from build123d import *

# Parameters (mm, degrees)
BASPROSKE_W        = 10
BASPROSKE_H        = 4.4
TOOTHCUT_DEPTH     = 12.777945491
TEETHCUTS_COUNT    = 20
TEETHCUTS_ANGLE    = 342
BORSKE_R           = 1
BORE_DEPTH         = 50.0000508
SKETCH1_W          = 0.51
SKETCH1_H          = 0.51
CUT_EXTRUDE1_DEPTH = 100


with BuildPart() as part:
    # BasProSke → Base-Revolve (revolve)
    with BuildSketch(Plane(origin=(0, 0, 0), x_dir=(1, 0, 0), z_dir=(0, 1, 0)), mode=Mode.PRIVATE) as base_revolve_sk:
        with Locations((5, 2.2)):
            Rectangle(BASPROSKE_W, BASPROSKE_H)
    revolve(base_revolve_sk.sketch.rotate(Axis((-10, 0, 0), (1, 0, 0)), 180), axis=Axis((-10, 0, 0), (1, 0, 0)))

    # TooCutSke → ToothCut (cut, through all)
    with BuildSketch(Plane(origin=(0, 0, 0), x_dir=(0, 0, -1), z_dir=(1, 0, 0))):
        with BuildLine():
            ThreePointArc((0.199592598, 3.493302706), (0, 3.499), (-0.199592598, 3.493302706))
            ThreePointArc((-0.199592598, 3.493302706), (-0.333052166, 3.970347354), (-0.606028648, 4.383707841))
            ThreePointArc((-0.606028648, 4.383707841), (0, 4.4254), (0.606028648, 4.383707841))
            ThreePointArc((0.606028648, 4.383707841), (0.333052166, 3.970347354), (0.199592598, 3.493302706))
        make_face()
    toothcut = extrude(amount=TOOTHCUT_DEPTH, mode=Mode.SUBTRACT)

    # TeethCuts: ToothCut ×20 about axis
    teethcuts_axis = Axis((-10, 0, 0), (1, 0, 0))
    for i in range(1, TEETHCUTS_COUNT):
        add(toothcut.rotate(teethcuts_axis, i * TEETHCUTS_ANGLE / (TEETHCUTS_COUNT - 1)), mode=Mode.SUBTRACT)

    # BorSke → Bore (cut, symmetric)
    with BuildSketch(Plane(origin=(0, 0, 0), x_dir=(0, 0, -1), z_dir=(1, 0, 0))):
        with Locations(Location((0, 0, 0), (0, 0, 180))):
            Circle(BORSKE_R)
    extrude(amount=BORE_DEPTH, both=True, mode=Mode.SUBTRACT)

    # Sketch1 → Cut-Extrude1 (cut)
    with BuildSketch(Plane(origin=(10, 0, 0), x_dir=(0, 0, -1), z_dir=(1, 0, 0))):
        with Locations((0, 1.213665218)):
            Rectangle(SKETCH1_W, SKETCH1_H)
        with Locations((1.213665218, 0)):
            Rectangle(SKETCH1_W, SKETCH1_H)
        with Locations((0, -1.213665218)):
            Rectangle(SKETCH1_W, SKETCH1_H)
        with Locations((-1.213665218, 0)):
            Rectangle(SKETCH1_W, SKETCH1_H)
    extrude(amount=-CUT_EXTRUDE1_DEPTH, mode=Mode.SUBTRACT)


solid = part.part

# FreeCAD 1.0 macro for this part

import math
import FreeCAD as App
import Part
import Sketcher
from FreeCAD import Vector


def add_polygon(sketch, points):
    """Adds a closed chain of lines whose ends are joined by coincident constraints."""
    first, n = sketch.GeometryCount, len(points)
    for a, b in zip(points, points[1:] + points[:1]):
        sketch.addGeometry(Part.LineSegment(App.Vector(*a, 0), App.Vector(*b, 0)), False)
    for i in range(n):
        sketch.addConstraint(Sketcher.Constraint("Coincident", first + i, 2, first + (i + 1) % n, 1))

doc = App.newDocument("Part")
body = doc.addObject("PartDesign::Body", "Body")

sketch1 = doc.addObject("Sketcher::SketchObject", "Sketch")
body.addObject(sketch1)
sketch1.AttachmentSupport = (doc.XZ_Plane, [""])
sketch1.MapMode = "FlatFace"
add_polygon(sketch1, [(0, -4.4), (0, 0), (10, 0), (10, -4.4)])
sketch1.addConstraint([
    Sketcher.Constraint("Vertical", 0),
    Sketcher.Constraint("Horizontal", 1),
    Sketcher.Constraint("Vertical", 2),
    Sketcher.Constraint("Horizontal", 3),
    Sketcher.Constraint("Coincident", 0, 2, -1, 1),
    Sketcher.Constraint("DistanceX", 1, 1, 1, 2, 10.0),
    Sketcher.Constraint("DistanceY", 0, 1, 0, 2, 4.4),
])
revolution = doc.addObject("PartDesign::Revolution", "Revolution")
body.addObject(revolution)
revolution.Profile = sketch1
revolution.ReferenceAxis = (sketch1, ["H_Axis"])
revolution.Angle = 360

sketch2 = doc.addObject("Sketcher::SketchObject", "Sketch001")
body.addObject(sketch2)
sketch2.AttachmentSupport = (doc.YZ_Plane, [""])
sketch2.MapMode = "FlatFace"
sketch2.addGeometry([
    Part.ArcOfCircle(Part.Circle(Vector(0, 0, 0), Vector(0, 0, 1), 3.5), math.radians(-3.27), math.radians(3.27)),
    Part.ArcOfCircle(Part.Circle(Vector(3.31, -1.79, 0), Vector(0, 0, 1), 1.6), math.radians(48), math.radians(83)),
    Part.ArcOfCircle(Part.Circle(Vector(0, 0, 0), Vector(0, 0, 1), 4.43), math.radians(-7.87), math.radians(7.87)),
    Part.ArcOfCircle(Part.Circle(Vector(3.31, 1.79, 0), Vector(0, 0, 1), 1.6), math.radians(-83), math.radians(-48)),
], False)
sketch2.addConstraint([
    Sketcher.Constraint("Coincident", 0, 1, 1, 2),
    Sketcher.Constraint("Coincident", 1, 1, 2, 1),
    Sketcher.Constraint("Coincident", 2, 2, 3, 2),
    Sketcher.Constraint("Coincident", 3, 1, 0, 2),
    Sketcher.Constraint("Coincident", 0, 3, -1, 1),
    Sketcher.Constraint("Coincident", 2, 3, -1, 1),
    Sketcher.Constraint("Equal", 1, 3),
    Sketcher.Constraint("Symmetric", 1, 3, 3, 3, -1),
    Sketcher.Constraint("Radius", 1, 1.6),
    Sketcher.Constraint("Radius", 0, 3.499),
    Sketcher.Constraint("Radius", 2, 4.4254),
    Sketcher.Constraint("DistanceX", -1, 1, 1, 3, 3.305952),
    Sketcher.Constraint("DistanceY", 1, 1, -1, 1, 0.606029),
])
pocket1 = doc.addObject("PartDesign::Pocket", "Pocket")
body.addObject(pocket1)
pocket1.Profile = sketch2
pocket1.Type = "ThroughAll"
pocket1.Reversed = True
doc.recompute()

polarpattern = doc.addObject("PartDesign::PolarPattern", "PolarPattern")
body.addObject(polarpattern)
polarpattern.Originals = [pocket1]
polarpattern.Axis = (doc.X_Axis, [""])
polarpattern.Angle = 360
polarpattern.Occurrences = 20
body.Tip = polarpattern

sketch3 = doc.addObject("Sketcher::SketchObject", "Sketch002")
body.addObject(sketch3)
sketch3.AttachmentSupport = (doc.YZ_Plane, [""])
sketch3.MapMode = "FlatFace"
sketch3.addGeometry(Part.Circle(Vector(0, 0, 0), Vector(0, 0, 1), 1), False)
sketch3.addConstraint([
    Sketcher.Constraint("Coincident", 0, 3, -1, 1),
    Sketcher.Constraint("Diameter", 0, 2.0),
])
pocket2 = doc.addObject("PartDesign::Pocket", "Pocket001")
body.addObject(pocket2)
pocket2.Profile = sketch3
pocket2.Length = 100.000102
pocket2.Midplane = True

sketch4 = doc.addObject("Sketcher::SketchObject", "Sketch003")
body.addObject(sketch4)
sketch4.AttachmentSupport = (doc.YZ_Plane, [""])
sketch4.MapMode = "FlatFace"
sketch4.AttachmentOffset = App.Placement(Vector(0, 0, 10), App.Rotation())
add_polygon(sketch4, [(1.5, 0.3), (1, 0.3), (1, -0.3), (1.5, -0.3)])
add_polygon(sketch4, [(0.3, -1), (-0.3, -1), (-0.3, -1.5), (0.3, -1.5)])
add_polygon(sketch4, [(-1, 0.3), (-1.5, 0.3), (-1.5, -0.3), (-1, -0.3)])
add_polygon(sketch4, [(0.3, 1.5), (-0.3, 1.5), (-0.3, 1), (0.3, 1)])
sketch4.addConstraint([
    Sketcher.Constraint("Horizontal", 0),
    Sketcher.Constraint("Vertical", 1),
    Sketcher.Constraint("Horizontal", 2),
    Sketcher.Constraint("Vertical", 3),
    Sketcher.Constraint("Horizontal", 4),
    Sketcher.Constraint("Vertical", 5),
    Sketcher.Constraint("Horizontal", 6),
    Sketcher.Constraint("Vertical", 7),
    Sketcher.Constraint("Horizontal", 8),
    Sketcher.Constraint("Vertical", 9),
    Sketcher.Constraint("Horizontal", 10),
    Sketcher.Constraint("Vertical", 11),
    Sketcher.Constraint("Horizontal", 12),
    Sketcher.Constraint("Vertical", 13),
    Sketcher.Constraint("Horizontal", 14),
    Sketcher.Constraint("Vertical", 15),
    Sketcher.Constraint("Symmetric", 2, 2, 8, 2, -1, 1),
    Sketcher.Constraint("Symmetric", 0, 2, 10, 2, -1, 1),
    Sketcher.Constraint("Symmetric", 6, 2, 12, 2, -1, 1),
    Sketcher.Constraint("Symmetric", 4, 2, 14, 2, -1, 1),
    Sketcher.Constraint("Horizontal", 3, 2, 8, 2),
    Sketcher.Constraint("Vertical", 5, 2, 12, 2),
    Sketcher.Constraint("Equal", 2, 4),
    Sketcher.Constraint("Equal", 14, 1),
    Sketcher.Constraint("Equal", 3, 5),
    Sketcher.Constraint("DistanceX", 0, 2, 0, 1, 0.51),
    Sketcher.Constraint("DistanceX", 8, 2, 0, 2, 2.42733),
    Sketcher.Constraint("DistanceY", 4, 2, -1, 1, 0.958665),
])
pocket3 = doc.addObject("PartDesign::Pocket", "Pocket002")
body.addObject(pocket3)
pocket3.Profile = sketch4
pocket3.Length = 100

doc.recompute()
